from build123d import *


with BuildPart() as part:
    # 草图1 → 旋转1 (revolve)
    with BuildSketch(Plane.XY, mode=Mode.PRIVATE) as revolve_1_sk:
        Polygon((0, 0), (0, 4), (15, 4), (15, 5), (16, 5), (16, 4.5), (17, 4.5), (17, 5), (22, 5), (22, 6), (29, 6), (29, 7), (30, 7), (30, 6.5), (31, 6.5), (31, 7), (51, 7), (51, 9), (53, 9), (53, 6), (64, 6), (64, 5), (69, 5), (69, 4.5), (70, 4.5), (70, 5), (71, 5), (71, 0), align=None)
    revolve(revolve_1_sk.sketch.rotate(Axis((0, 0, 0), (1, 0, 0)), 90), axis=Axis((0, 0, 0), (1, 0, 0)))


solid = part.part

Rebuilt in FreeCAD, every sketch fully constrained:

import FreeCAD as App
import Part
import Sketcher


def add_polygon(sketch, points):
    """Adds a closed chain of lines whose ends are joined by coincident constraints."""
    first, n = sketch.GeometryCount, len(points)
    for a, b in zip(points, points[1:] + points[:1]):
        sketch.addGeometry(Part.LineSegment(App.Vector(*a, 0), App.Vector(*b, 0)), False)
    for i in range(n):
        sketch.addConstraint(Sketcher.Constraint("Coincident", first + i, 2, first + (i + 1) % n, 1))

doc = App.newDocument("Part")
params = doc.addObject("Spreadsheet::Sheet", "Params")
for row, (alias, value) in enumerate([
    ("sketch1_width", "71 mm"),
    ("sketch1_width2", "1 mm"),
    ("sketch1_width3", "5 mm"),
    ("sketch1_width4", "11 mm"),
    ("sketch1_width5", "2 mm"),
    ("revolution_angle", "360 deg"),
], start=1):
    params.set(f"A{row}", alias)
    params.set(f"B{row}", "=" + value)
    params.setAlias(f"B{row}", alias)

body = doc.addObject("PartDesign::Body", "Body")

sketch1 = body.newObject("Sketcher::SketchObject", "Sketch")
sketch1.AttachmentSupport = (doc.getObject("XY_Plane"), [""])
sketch1.MapMode = "FlatFace"
add_polygon(sketch1, [(0, 4), (0, 0), (71, 0), (71, 5), (70, 5), (70, 4.5), (69, 4.5), (69, 5), (64, 5), (64, 6), (53, 6), (53, 9), (51, 9), (51, 7), (31, 7), (31, 6.5), (30, 6.5), (30, 7), (29, 7), (29, 6), (22, 6), (22, 5), (17, 5), (17, 4.5), (16, 4.5), (16, 5), (15, 5), (15, 4)])
sketch1.addConstraint(Sketcher.Constraint("Vertical", 0))
sketch1.addConstraint(Sketcher.Constraint("Horizontal", 1))
sketch1.addConstraint(Sketcher.Constraint("Vertical", 2))
sketch1.addConstraint(Sketcher.Constraint("Horizontal", 3))
sketch1.addConstraint(Sketcher.Constraint("Vertical", 4))
sketch1.addConstraint(Sketcher.Constraint("Horizontal", 5))
sketch1.addConstraint(Sketcher.Constraint("Vertical", 6))
sketch1.addConstraint(Sketcher.Constraint("Horizontal", 7))
sketch1.addConstraint(Sketcher.Constraint("Vertical", 8))
sketch1.addConstraint(Sketcher.Constraint("Horizontal", 9))
sketch1.addConstraint(Sketcher.Constraint("Vertical", 10))
sketch1.addConstraint(Sketcher.Constraint("Horizontal", 11))
sketch1.addConstraint(Sketcher.Constraint("Vertical", 12))
sketch1.addConstraint(Sketcher.Constraint("Horizontal", 13))
sketch1.addConstraint(Sketcher.Constraint("Vertical", 14))
sketch1.addConstraint(Sketcher.Constraint("Horizontal", 15))
sketch1.addConstraint(Sketcher.Constraint("Vertical", 16))
sketch1.addConstraint(Sketcher.Constraint("Horizontal", 17))
sketch1.addConstraint(Sketcher.Constraint("Vertical", 18))
sketch1.addConstraint(Sketcher.Constraint("Horizontal", 19))
sketch1.addConstraint(Sketcher.Constraint("Vertical", 20))
sketch1.addConstraint(Sketcher.Constraint("Horizontal", 21))
sketch1.addConstraint(Sketcher.Constraint("Vertical", 22))
sketch1.addConstraint(Sketcher.Constraint("Horizontal", 23))
sketch1.addConstraint(Sketcher.Constraint("Vertical", 24))
sketch1.addConstraint(Sketcher.Constraint("Horizontal", 25))
sketch1.addConstraint(Sketcher.Constraint("Vertical", 26))
sketch1.addConstraint(Sketcher.Constraint("Horizontal", 27))
sketch1.addConstraint(Sketcher.Constraint("Coincident", 0, 2, -1, 1))
sketch1.addConstraint(Sketcher.Constraint("Horizontal", 3, 2, 6, 2))
sketch1.addConstraint(Sketcher.Constraint("Horizontal", 13, 2, 16, 2))
sketch1.addConstraint(Sketcher.Constraint("Horizontal", 9, 2, 18, 2))
sketch1.addConstraint(Sketcher.Constraint("Horizontal", 7, 2, 20, 2))
sketch1.addConstraint(Sketcher.Constraint("Horizontal", 5, 2, 22, 2))
sketch1.addConstraint(Sketcher.Constraint("Horizontal", 21, 2, 24, 2))
sketch1.addConstraint(Sketcher.Constraint("Equal", 3, 5))
sketch1.addConstraint(Sketcher.Constraint("Equal", 5, 15))
sketch1.addConstraint(Sketcher.Constraint("Equal", 15, 17))
sketch1.addConstraint(Sketcher.Constraint("Equal", 7, 21))
sketch1.addConstraint(Sketcher.Constraint("Equal", 17, 23))
sketch1.addConstraint(Sketcher.Constraint("Equal", 23, 25))
sketch1.addConstraint(Sketcher.Constraint("Equal", 21, 2))
sketch1.addConstraint(Sketcher.Constraint("Equal", 25, 8))
sketch1.addConstraint(Sketcher.Constraint("Equal", 11, 12))
sketch1.addConstraint(Sketcher.Constraint("Equal", 6, 14))
sketch1.addConstraint(Sketcher.Constraint("Equal", 8, 18))
sketch1.addConstraint(Sketcher.Constraint("Equal", 20, 26))
sketch1.addConstraint(Sketcher.Constraint("DistanceX", 1, 1, 1, 2, 71.0))
sketch1.addConstraint(Sketcher.Constraint("DistanceX", 3, 2, 3, 1, 1.0))
sketch1.addConstraint(Sketcher.Constraint("DistanceX", 7, 2, 7, 1, 5.0))
sketch1.addConstraint(Sketcher.Constraint("DistanceX", 9, 2, 9, 1, 11.0))
sketch1.addConstraint(Sketcher.Constraint("DistanceX", 11, 2, 11, 1, 2.0))
sketch1.addConstraint(Sketcher.Constraint("DistanceX", 13, 2, 13, 1, 20.0))
sketch1.addConstraint(Sketcher.Constraint("DistanceX", 19, 2, 19, 1, 7.0))
sketch1.addConstraint(Sketcher.Constraint("DistanceY", 4, 2, 4, 1, 0.5))
sketch1.setExpression("Constraints[75]", "Params.sketch1_width")
sketch1.setExpression("Constraints[76]", "Params.sketch1_width2")
sketch1.setExpression("Constraints[77]", "Params.sketch1_width3")
sketch1.setExpression("Constraints[78]", "Params.sketch1_width4")
sketch1.setExpression("Constraints[79]", "Params.sketch1_width5")
revolution = body.newObject("PartDesign::Revolution", "Revolution")
revolution.Profile = sketch1
revolution.ReferenceAxis = (sketch1, ["H_Axis"])
revolution.setExpression("Angle", "Params.revolution_angle")

doc.recompute()
